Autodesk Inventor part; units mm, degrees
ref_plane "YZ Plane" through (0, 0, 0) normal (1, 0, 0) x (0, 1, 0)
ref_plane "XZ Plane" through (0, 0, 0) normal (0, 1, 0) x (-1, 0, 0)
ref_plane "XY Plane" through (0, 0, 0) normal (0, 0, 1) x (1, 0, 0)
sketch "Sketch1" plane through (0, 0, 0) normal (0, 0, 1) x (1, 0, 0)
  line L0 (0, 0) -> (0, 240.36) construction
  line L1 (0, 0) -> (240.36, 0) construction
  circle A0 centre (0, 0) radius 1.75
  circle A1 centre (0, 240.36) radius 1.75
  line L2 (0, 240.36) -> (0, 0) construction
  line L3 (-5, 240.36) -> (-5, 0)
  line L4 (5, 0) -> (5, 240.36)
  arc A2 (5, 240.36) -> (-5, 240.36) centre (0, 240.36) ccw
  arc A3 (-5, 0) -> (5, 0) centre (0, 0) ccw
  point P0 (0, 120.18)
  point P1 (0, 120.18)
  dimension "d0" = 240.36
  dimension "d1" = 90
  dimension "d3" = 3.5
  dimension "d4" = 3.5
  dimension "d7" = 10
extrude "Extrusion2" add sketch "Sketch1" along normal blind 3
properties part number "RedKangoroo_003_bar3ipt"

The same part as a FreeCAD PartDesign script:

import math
import FreeCAD as App
import Part
import Sketcher
from FreeCAD import Vector
Q = App.Units.Quantity

doc = App.newDocument("Part")
params = doc.addObject("Spreadsheet::Sheet", "Params")
for row, (alias, value) in enumerate([
    ("sketch1_height", "9.463 in"),
    ("pad1_length", "0.1181102 in"),
], start=1):
    params.set(f"A{row}", alias)
    params.set(f"B{row}", "=" + value)
    params.setAlias(f"B{row}", alias)

body = doc.addObject("PartDesign::Body", "Body")

sketch1 = doc.addObject("Sketcher::SketchObject", "Sketch")
body.addObject(sketch1)
sketch1.AttachmentSupport = (doc.XY_Plane, [""])
sketch1.MapMode = "FlatFace"
sketch1.addGeometry([
    Part.ArcOfCircle(Part.Circle(Vector(0, 240.4, 0), Vector(0, 0, 1), 5), math.radians(0), math.radians(180)),
    Part.LineSegment(Vector(-5, 240.4, 0), Vector(-5, 0, 0)),
    Part.ArcOfCircle(Part.Circle(Vector(0, 0, 0), Vector(0, 0, 1), 5), math.radians(180), math.radians(360)),
    Part.LineSegment(Vector(5, 0, 0), Vector(5, 240.4, 0)),
    Part.Circle(Vector(0, 0, 0), Vector(0, 0, 1), 1.8),
    Part.Circle(Vector(0, 240.4, 0), Vector(0, 0, 1), 1.8),
], False)
sketch1.addConstraint([
    Sketcher.Constraint("Tangent", 0, 2, 1, 1),
    Sketcher.Constraint("Tangent", 1, 2, 2, 1),
    Sketcher.Constraint("Tangent", 2, 2, 3, 1),
    Sketcher.Constraint("Tangent", 3, 2, 0, 1),
    Sketcher.Constraint("Vertical", 1),
    Sketcher.Constraint("Vertical", 3),
    Sketcher.Constraint("Coincident", 2, 3, -1, 1),
    Sketcher.Constraint("Coincident", 4, 3, -1, 1),
    Sketcher.Constraint("Coincident", 5, 3, 0, 3),
    Sketcher.Constraint("Equal", 4, 5),
    Sketcher.Constraint("Diameter", 4, Q("0.1378 in")),
    Sketcher.Constraint("DistanceY", 1, 2, 1, 1, Q("9.463 in")),
    Sketcher.Constraint("Radius", 0, 5.0),
])
sketch1.setExpression("Constraints[11]", "Params.sketch1_height")
pad1 = doc.addObject("PartDesign::Pad", "Pad")
body.addObject(pad1)
pad1.Profile = sketch1
pad1.setExpression("Length", "Params.pad1_length")

doc.recompute()
